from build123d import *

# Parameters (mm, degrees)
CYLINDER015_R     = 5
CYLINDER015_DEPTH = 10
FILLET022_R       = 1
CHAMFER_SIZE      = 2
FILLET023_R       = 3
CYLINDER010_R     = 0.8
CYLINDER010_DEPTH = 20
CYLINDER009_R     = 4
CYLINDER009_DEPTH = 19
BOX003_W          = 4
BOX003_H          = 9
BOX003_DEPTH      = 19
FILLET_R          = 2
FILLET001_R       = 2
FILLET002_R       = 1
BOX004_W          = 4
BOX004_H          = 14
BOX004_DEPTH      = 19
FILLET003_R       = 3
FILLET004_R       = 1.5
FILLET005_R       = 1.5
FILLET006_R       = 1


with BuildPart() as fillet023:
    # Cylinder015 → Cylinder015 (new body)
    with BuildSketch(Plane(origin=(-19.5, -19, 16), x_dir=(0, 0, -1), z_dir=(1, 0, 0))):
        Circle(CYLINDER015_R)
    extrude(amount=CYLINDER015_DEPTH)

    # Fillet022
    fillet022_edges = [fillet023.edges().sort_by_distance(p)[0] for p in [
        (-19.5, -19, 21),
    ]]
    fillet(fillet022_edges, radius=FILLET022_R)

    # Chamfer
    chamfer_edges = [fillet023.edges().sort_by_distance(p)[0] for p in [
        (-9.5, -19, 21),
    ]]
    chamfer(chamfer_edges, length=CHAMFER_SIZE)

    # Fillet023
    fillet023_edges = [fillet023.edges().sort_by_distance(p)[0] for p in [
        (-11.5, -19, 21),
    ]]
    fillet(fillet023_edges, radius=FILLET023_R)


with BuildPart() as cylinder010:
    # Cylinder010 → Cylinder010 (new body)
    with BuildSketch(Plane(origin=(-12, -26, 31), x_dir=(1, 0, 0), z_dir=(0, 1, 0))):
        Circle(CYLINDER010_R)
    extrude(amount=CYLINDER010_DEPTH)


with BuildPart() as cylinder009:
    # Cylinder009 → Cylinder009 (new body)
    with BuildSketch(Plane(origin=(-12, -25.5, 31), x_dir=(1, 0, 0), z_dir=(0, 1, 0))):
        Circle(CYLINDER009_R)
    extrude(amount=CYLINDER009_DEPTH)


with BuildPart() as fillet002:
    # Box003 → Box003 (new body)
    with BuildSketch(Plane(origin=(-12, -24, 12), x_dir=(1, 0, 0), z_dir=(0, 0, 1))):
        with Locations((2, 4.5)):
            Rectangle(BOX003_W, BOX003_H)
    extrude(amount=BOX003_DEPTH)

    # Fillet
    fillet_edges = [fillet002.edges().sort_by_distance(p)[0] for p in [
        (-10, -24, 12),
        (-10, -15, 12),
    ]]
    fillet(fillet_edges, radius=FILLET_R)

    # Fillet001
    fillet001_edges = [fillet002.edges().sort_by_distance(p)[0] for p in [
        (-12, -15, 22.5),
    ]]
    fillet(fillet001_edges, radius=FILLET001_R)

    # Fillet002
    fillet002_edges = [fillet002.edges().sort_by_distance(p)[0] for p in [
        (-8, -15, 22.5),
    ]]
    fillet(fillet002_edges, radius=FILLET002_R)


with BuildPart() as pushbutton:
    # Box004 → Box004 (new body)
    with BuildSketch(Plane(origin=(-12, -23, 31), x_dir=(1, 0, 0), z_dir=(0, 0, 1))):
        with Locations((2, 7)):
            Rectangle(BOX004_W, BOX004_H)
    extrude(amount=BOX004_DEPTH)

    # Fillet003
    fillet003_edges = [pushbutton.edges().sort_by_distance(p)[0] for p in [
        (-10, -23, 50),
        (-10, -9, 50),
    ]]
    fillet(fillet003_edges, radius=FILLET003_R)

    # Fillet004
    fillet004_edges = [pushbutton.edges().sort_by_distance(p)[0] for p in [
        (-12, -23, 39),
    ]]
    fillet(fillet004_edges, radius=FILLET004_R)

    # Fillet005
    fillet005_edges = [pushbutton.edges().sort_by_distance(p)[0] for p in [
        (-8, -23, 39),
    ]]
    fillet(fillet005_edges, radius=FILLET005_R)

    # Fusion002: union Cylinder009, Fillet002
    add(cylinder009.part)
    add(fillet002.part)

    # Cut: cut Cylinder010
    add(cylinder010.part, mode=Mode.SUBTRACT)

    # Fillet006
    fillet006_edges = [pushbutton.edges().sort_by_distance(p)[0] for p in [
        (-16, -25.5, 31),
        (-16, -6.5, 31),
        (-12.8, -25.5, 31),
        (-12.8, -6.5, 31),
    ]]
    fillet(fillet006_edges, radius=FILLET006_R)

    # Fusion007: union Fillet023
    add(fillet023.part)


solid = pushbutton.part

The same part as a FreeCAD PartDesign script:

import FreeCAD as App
import Part
import Sketcher


def edges_at(feature, points):
    """Names of the edges that pass closest to the given points."""
    edges = feature.Shape.Edges
    near = lambda p: min(range(len(edges)), key=lambda i: edges[i].distToShape(Part.Vertex(*p))[0])
    return sorted({f"Edge{near(p) + 1}" for p in points})

doc = App.newDocument("Part")
params = doc.addObject("Spreadsheet::Sheet", "Params")
for row, (alias, value) in enumerate([
    ("sketch1_diameter", "10 mm"),
    ("pad1_length", "10 mm"),
    ("fillet_radius", "1 mm"),
    ("chamfer_size", "2 mm"),
    ("fillet2_radius", "3 mm"),
    ("sketch2_diameter", "1.6 mm"),
    ("pad2_length", "20 mm"),
    ("sketch3_diameter", "8 mm"),
    ("pad3_length", "19 mm"),
    ("sketch4_width", "4 mm"),
    ("sketch4_height", "9 mm"),
    ("pad4_length", "19 mm"),
    ("fillet3_radius", "2 mm"),
    ("fillet4_radius", "2 mm"),
    ("fillet5_radius", "1 mm"),
    ("sketch5_width", "4 mm"),
    ("sketch5_height", "14 mm"),
    ("pad5_length", "19 mm"),
    ("fillet6_radius", "3 mm"),
    ("fillet7_radius", "1.5 mm"),
    ("fillet8_radius", "1.5 mm"),
    ("fillet9_radius", "1 mm"),
], start=1):
    params.set(f"A{row}", alias)
    params.set(f"B{row}", "=" + value)
    params.setAlias(f"B{row}", alias)

body = doc.addObject("PartDesign::Body", "Body")

# Sketch on YZ plane
sketch1 = doc.addObject("Sketcher::SketchObject", "Sketch")
body.addObject(sketch1)
sketch1.AttachmentSupport = (doc.YZ_Plane, [""])
sketch1.MapMode = "FlatFace"
sketch1.AttachmentOffset = App.Placement(App.Vector(0, 0, -19.5), App.Rotation())
sketch1.addGeometry(Part.Circle(App.Vector(-19, 16, 0), App.Vector(0, 0, 1), 5), False)
sketch1.addConstraint(Sketcher.Constraint("Diameter", 0, 10.0))
sketch1.addConstraint(Sketcher.Constraint("DistanceX", 0, 3, -1, 1, 19.0))
sketch1.addConstraint(Sketcher.Constraint("DistanceY", -1, 1, 0, 3, 16.0))
sketch1.setExpression("Constraints[0]", "Params.sketch1_diameter")
pad1 = doc.addObject("PartDesign::Pad", "Pad")
body.addObject(pad1)
pad1.Profile = sketch1
pad1.setExpression("Length", "Params.pad1_length")
doc.recompute()

fillet = doc.addObject("PartDesign::Fillet", "Fillet")
body.addObject(fillet)
fillet.Base = (pad1, edges_at(pad1, [(-19.5, -19, 21)]))
fillet.setExpression("Radius", "Params.fillet_radius")
doc.recompute()

chamfer = doc.addObject("PartDesign::Chamfer", "Chamfer")
body.addObject(chamfer)
chamfer.Base = (fillet, edges_at(fillet, [(-9.5, -19, 21)]))
chamfer.setExpression("Size", "Params.chamfer_size")
doc.recompute()

fillet2 = doc.addObject("PartDesign::Fillet", "Fillet001")
body.addObject(fillet2)
fillet2.Base = (chamfer, edges_at(chamfer, [(-11.5, -19, 21)]))
fillet2.setExpression("Radius", "Params.fillet2_radius")
body2 = doc.addObject("PartDesign::Body", "Body001")

# Sketch on XZ plane
sketch2 = doc.addObject("Sketcher::SketchObject", "Sketch001")
body2.addObject(sketch2)
sketch2.AttachmentSupport = (doc.getObject("XZ_Plane001"), [""])
sketch2.MapMode = "FlatFace"
sketch2.AttachmentOffset = App.Placement(App.Vector(0, 0, 26), App.Rotation())
sketch2.addGeometry(Part.Circle(App.Vector(-12, 31, 0), App.Vector(0, 0, 1), 0.8), False)
sketch2.addConstraint(Sketcher.Constraint("Diameter", 0, 1.6))
sketch2.addConstraint(Sketcher.Constraint("DistanceX", 0, 3, -1, 1, 12.0))
sketch2.addConstraint(Sketcher.Constraint("DistanceY", -1, 1, 0, 3, 31.0))
sketch2.setExpression("Constraints[0]", "Params.sketch2_diameter")
pad2 = doc.addObject("PartDesign::Pad", "Pad001")
body2.addObject(pad2)
pad2.Profile = sketch2
pad2.setExpression("Length", "Params.pad2_length")
pad2.Reversed = True
body3 = doc.addObject("PartDesign::Body", "Body002")

# Sketch on XZ plane
sketch3 = doc.addObject("Sketcher::SketchObject", "Sketch002")
body3.addObject(sketch3)
sketch3.AttachmentSupport = (doc.getObject("XZ_Plane002"), [""])
sketch3.MapMode = "FlatFace"
sketch3.AttachmentOffset = App.Placement(App.Vector(0, 0, 25.5), App.Rotation())
sketch3.addGeometry(Part.Circle(App.Vector(-12, 31, 0), App.Vector(0, 0, 1), 4), False)
sketch3.addConstraint(Sketcher.Constraint("Diameter", 0, 8.0))
sketch3.addConstraint(Sketcher.Constraint("DistanceX", 0, 3, -1, 1, 12.0))
sketch3.addConstraint(Sketcher.Constraint("DistanceY", -1, 1, 0, 3, 31.0))
sketch3.setExpression("Constraints[0]", "Params.sketch3_diameter")
pad3 = doc.addObject("PartDesign::Pad", "Pad002")
body3.addObject(pad3)
pad3.Profile = sketch3
pad3.setExpression("Length", "Params.pad3_length")
pad3.Reversed = True
body4 = doc.addObject("PartDesign::Body", "Body003")

# Sketch on XY plane
sketch4 = doc.addObject("Sketcher::SketchObject", "Sketch003")
body4.addObject(sketch4)
sketch4.AttachmentSupport = (doc.getObject("XY_Plane003"), [""])
sketch4.MapMode = "FlatFace"
sketch4.AttachmentOffset = App.Placement(App.Vector(0, 0, 12), App.Rotation())
sketch4.addGeometry(Part.LineSegment(App.Vector(-12, -15, 0), App.Vector(-12, -24, 0)), False)
sketch4.addGeometry(Part.LineSegment(App.Vector(-12, -24, 0), App.Vector(-8, -24, 0)), False)
sketch4.addGeometry(Part.LineSegment(App.Vector(-8, -24, 0), App.Vector(-8, -15, 0)), False)
sketch4.addGeometry(Part.LineSegment(App.Vector(-8, -15, 0), App.Vector(-12, -15, 0)), False)
sketch4.addConstraint(Sketcher.Constraint("Coincident", 0, 2, 1, 1))
sketch4.addConstraint(Sketcher.Constraint("Coincident", 1, 2, 2, 1))
sketch4.addConstraint(Sketcher.Constraint("Coincident", 2, 2, 3, 1))
sketch4.addConstraint(Sketcher.Constraint("Coincident", 3, 2, 0, 1))
sketch4.addConstraint(Sketcher.Constraint("Vertical", 0))
sketch4.addConstraint(Sketcher.Constraint("Horizontal", 1))
sketch4.addConstraint(Sketcher.Constraint("Vertical", 2))
sketch4.addConstraint(Sketcher.Constraint("Horizontal", 3))
sketch4.addConstraint(Sketcher.Constraint("DistanceX", 1, 1, 1, 2, 4.0))
sketch4.addConstraint(Sketcher.Constraint("DistanceY", 0, 2, 0, 1, 9.0))
sketch4.addConstraint(Sketcher.Constraint("DistanceX", 0, 2, -1, 1, 12.0))
sketch4.addConstraint(Sketcher.Constraint("DistanceY", 0, 2, -1, 1, 24.0))
sketch4.setExpression("Constraints[8]", "Params.sketch4_width")
sketch4.setExpression("Constraints[9]", "Params.sketch4_height")
pad4 = doc.addObject("PartDesign::Pad", "Pad003")
body4.addObject(pad4)
pad4.Profile = sketch4
pad4.setExpression("Length", "Params.pad4_length")
doc.recompute()

fillet3 = doc.addObject("PartDesign::Fillet", "Fillet002")
body4.addObject(fillet3)
fillet3.Base = (pad4, edges_at(pad4, [(-10, -24, 12), (-10, -15, 12)]))
fillet3.setExpression("Radius", "Params.fillet3_radius")
doc.recompute()

fillet4 = doc.addObject("PartDesign::Fillet", "Fillet003")
body4.addObject(fillet4)
fillet4.Base = (fillet3, edges_at(fillet3, [(-12, -15, 22.5)]))
fillet4.setExpression("Radius", "Params.fillet4_radius")
doc.recompute()

fillet5 = doc.addObject("PartDesign::Fillet", "Fillet004")
body4.addObject(fillet5)
fillet5.Base = (fillet4, edges_at(fillet4, [(-8, -15, 22.5)]))
fillet5.setExpression("Radius", "Params.fillet5_radius")
body5 = doc.addObject("PartDesign::Body", "Body004")

# Sketch on XY plane
sketch5 = doc.addObject("Sketcher::SketchObject", "Sketch004")
body5.addObject(sketch5)
sketch5.AttachmentSupport = (doc.getObject("XY_Plane004"), [""])
sketch5.MapMode = "FlatFace"
sketch5.AttachmentOffset = App.Placement(App.Vector(0, 0, 31), App.Rotation())
sketch5.addGeometry(Part.LineSegment(App.Vector(-12, -9, 0), App.Vector(-12, -23, 0)), False)
sketch5.addGeometry(Part.LineSegment(App.Vector(-12, -23, 0), App.Vector(-8, -23, 0)), False)
sketch5.addGeometry(Part.LineSegment(App.Vector(-8, -23, 0), App.Vector(-8, -9, 0)), False)
sketch5.addGeometry(Part.LineSegment(App.Vector(-8, -9, 0), App.Vector(-12, -9, 0)), False)
sketch5.addConstraint(Sketcher.Constraint("Coincident", 0, 2, 1, 1))
sketch5.addConstraint(Sketcher.Constraint("Coincident", 1, 2, 2, 1))
sketch5.addConstraint(Sketcher.Constraint("Coincident", 2, 2, 3, 1))
sketch5.addConstraint(Sketcher.Constraint("Coincident", 3, 2, 0, 1))
sketch5.addConstraint(Sketcher.Constraint("Vertical", 0))
sketch5.addConstraint(Sketcher.Constraint("Horizontal", 1))
sketch5.addConstraint(Sketcher.Constraint("Vertical", 2))
sketch5.addConstraint(Sketcher.Constraint("Horizontal", 3))
sketch5.addConstraint(Sketcher.Constraint("DistanceX", 1, 1, 1, 2, 4.0))
sketch5.addConstraint(Sketcher.Constraint("DistanceY", 0, 2, 0, 1, 14.0))
sketch5.addConstraint(Sketcher.Constraint("DistanceX", 0, 2, -1, 1, 12.0))
sketch5.addConstraint(Sketcher.Constraint("DistanceY", 0, 2, -1, 1, 23.0))
sketch5.setExpression("Constraints[8]", "Params.sketch5_width")
sketch5.setExpression("Constraints[9]", "Params.sketch5_height")
pad5 = doc.addObject("PartDesign::Pad", "Pad004")
body5.addObject(pad5)
pad5.Profile = sketch5
pad5.setExpression("Length", "Params.pad5_length")
doc.recompute()

fillet6 = doc.addObject("PartDesign::Fillet", "Fillet005")
body5.addObject(fillet6)
fillet6.Base = (pad5, edges_at(pad5, [(-10, -23, 50), (-10, -9, 50)]))
fillet6.setExpression("Radius", "Params.fillet6_radius")
doc.recompute()

fillet7 = doc.addObject("PartDesign::Fillet", "Fillet006")
body5.addObject(fillet7)
fillet7.Base = (fillet6, edges_at(fillet6, [(-12, -23, 39)]))
fillet7.setExpression("Radius", "Params.fillet7_radius")
doc.recompute()

fillet8 = doc.addObject("PartDesign::Fillet", "Fillet007")
body5.addObject(fillet8)
fillet8.Base = (fillet7, edges_at(fillet7, [(-8, -23, 39)]))
fillet8.setExpression("Radius", "Params.fillet8_radius")
doc.recompute()

boolean = doc.addObject("PartDesign::Boolean", "Boolean")
body5.addObject(boolean)
boolean.Type = "Fuse"
boolean.addObjects([body3])
doc.recompute()

boolean2 = doc.addObject("PartDesign::Boolean", "Boolean001")
body5.addObject(boolean2)
boolean2.Type = "Fuse"
boolean2.addObjects([body4])
doc.recompute()

boolean3 = doc.addObject("PartDesign::Boolean", "Boolean002")
body5.addObject(boolean3)
boolean3.Type = "Cut"
boolean3.addObjects([body2])
doc.recompute()

fillet9 = doc.addObject("PartDesign::Fillet", "Fillet008")
body5.addObject(fillet9)
fillet9.Base = (boolean3, edges_at(boolean3, [
    (-16, -25.5, 31),
    (-16, -6.5, 31),
    (-12.8, -25.5, 31),
    (-12.8, -6.5, 31),
]))
fillet9.setExpression("Radius", "Params.fillet9_radius")
doc.recompute()

boolean4 = doc.addObject("PartDesign::Boolean", "Boolean003")
body5.addObject(boolean4)
boolean4.Type = "Fuse"
boolean4.addObjects([body])

doc.recompute()
